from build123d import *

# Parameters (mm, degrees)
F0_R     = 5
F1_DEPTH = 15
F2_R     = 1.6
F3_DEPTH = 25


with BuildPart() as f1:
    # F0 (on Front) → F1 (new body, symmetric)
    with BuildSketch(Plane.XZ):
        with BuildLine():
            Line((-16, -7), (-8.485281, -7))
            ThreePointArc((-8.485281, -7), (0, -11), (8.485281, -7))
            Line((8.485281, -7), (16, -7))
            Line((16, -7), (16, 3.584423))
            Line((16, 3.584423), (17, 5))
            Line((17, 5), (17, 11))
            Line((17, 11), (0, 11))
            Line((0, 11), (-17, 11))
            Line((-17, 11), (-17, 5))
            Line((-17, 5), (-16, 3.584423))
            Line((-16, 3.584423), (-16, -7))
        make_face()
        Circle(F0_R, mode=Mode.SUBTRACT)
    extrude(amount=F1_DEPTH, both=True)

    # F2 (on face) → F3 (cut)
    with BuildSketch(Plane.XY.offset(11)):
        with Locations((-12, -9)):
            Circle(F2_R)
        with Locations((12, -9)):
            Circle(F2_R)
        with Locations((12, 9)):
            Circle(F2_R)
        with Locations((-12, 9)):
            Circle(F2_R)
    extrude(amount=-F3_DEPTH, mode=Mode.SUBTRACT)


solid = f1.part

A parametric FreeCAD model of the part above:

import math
import FreeCAD as App
import Part
import Sketcher

V = App.Vector

doc = App.newDocument("Part")
body = doc.addObject("PartDesign::Body", "Body")

sketch1 = body.newObject("Sketcher::SketchObject", "Sketch")
sketch1.AttachmentSupport = (doc.getObject("XZ_Plane"), [""])
sketch1.MapMode = "FlatFace"
sketch1.addGeometry([
    Part.LineSegment(V(-16, -7, 0), V(-8.485281, -7, 0)),
    Part.ArcOfCircle(Part.Circle(V(0, -0.000001, 0), V(0, 0, 1), 10.999999), math.radians(-140.478806), math.radians(-39.521194)),
    Part.LineSegment(V(8.485281, -7, 0), V(16, -7, 0)),
    Part.LineSegment(V(16, -7, 0), V(16, 3.584423, 0)),
    Part.LineSegment(V(16, 3.584423, 0), V(17, 5, 0)),
    Part.LineSegment(V(17, 5, 0), V(17, 11, 0)),
    Part.LineSegment(V(17, 11, 0), V(-17, 11, 0)),
    Part.LineSegment(V(-17, 11, 0), V(-17, 5, 0)),
    Part.LineSegment(V(-17, 5, 0), V(-16, 3.584423, 0)),
    Part.LineSegment(V(-16, 3.584423, 0), V(-16, -7, 0)),
    Part.Circle(V(0, 0, 0), V(0, 0, 1), 5),
], False)
sketch1.addConstraint([
    Sketcher.Constraint("Coincident", 0, 2, 1, 1),
    Sketcher.Constraint("Coincident", 1, 2, 2, 1),
    Sketcher.Constraint("Coincident", 2, 2, 3, 1),
    Sketcher.Constraint("Coincident", 3, 2, 4, 1),
    Sketcher.Constraint("Coincident", 4, 2, 5, 1),
    Sketcher.Constraint("Coincident", 5, 2, 6, 1),
    Sketcher.Constraint("Coincident", 6, 2, 7, 1),
    Sketcher.Constraint("Coincident", 7, 2, 8, 1),
    Sketcher.Constraint("Coincident", 8, 2, 9, 1),
    Sketcher.Constraint("Coincident", 9, 2, 0, 1),
    Sketcher.Constraint("Horizontal", 0),
    Sketcher.Constraint("Horizontal", 2),
    Sketcher.Constraint("Vertical", 3),
    Sketcher.Constraint("Vertical", 5),
    Sketcher.Constraint("Horizontal", 6),
    Sketcher.Constraint("Vertical", 7),
    Sketcher.Constraint("Vertical", 9),
    Sketcher.Constraint("Coincident", 1, 3, -1, 1),
    Sketcher.Constraint("Coincident", 10, 3, -1, 1),
    Sketcher.Constraint("Symmetric", 4, 2, 7, 2, -2),
    Sketcher.Constraint("Symmetric", 3, 2, 8, 2, -2),
    Sketcher.Constraint("Horizontal", 0, 2, 1, 2),
    Sketcher.Constraint("Diameter", 10, 10.0),
    Sketcher.Constraint("Radius", 1, 10.999999),
    Sketcher.Constraint("DistanceX", 6, 2, 6, 1, 34.0),
    Sketcher.Constraint("DistanceY", 5, 1, 5, 2, 6.0),
    Sketcher.Constraint("DistanceY", 0, 2, -1, 1, 7.0),
    Sketcher.Constraint("DistanceX", -1, 1, 2, 2, 16.0),
    Sketcher.Constraint("DistanceY", -1, 1, 4, 2, 5.0),
    Sketcher.Constraint("DistanceY", 3, 1, 3, 2, 10.584423),
])
pad1 = body.newObject("PartDesign::Pad", "Pad")
pad1.Profile = sketch1
pad1.Length = 30
pad1.Midplane = True

sketch2 = body.newObject("Sketcher::SketchObject", "Sketch001")
sketch2.AttachmentSupport = (doc.getObject("XY_Plane"), [""])
sketch2.MapMode = "FlatFace"
sketch2.AttachmentOffset = App.Placement(V(0, 0, 11), App.Rotation())
sketch2.addGeometry([
    Part.Circle(V(-12, -9, 0), V(0, 0, 1), 1.6),
    Part.Circle(V(12, -9, 0), V(0, 0, 1), 1.6),
    Part.Circle(V(12, 9, 0), V(0, 0, 1), 1.6),
    Part.Circle(V(-12, 9, 0), V(0, 0, 1), 1.6),
], False)
sketch2.addConstraint([
    Sketcher.Constraint("Equal", 0, 1),
    Sketcher.Constraint("Equal", 1, 2),
    Sketcher.Constraint("Equal", 2, 3),
    Sketcher.Constraint("Symmetric", 0, 3, 2, 3, -1, 1),
    Sketcher.Constraint("Symmetric", 1, 3, 3, 3, -1, 1),
    Sketcher.Constraint("Symmetric", 0, 3, 1, 3, -2),
    Sketcher.Constraint("Diameter", 0, 3.2),
    Sketcher.Constraint("DistanceX", 0, 3, -1, 1, 12.0),
    Sketcher.Constraint("DistanceY", 0, 3, -1, 1, 9.0),
])
pocket1 = body.newObject("PartDesign::Pocket", "Pocket")
pocket1.Profile = sketch2
pocket1.Length = 25

doc.recompute()
